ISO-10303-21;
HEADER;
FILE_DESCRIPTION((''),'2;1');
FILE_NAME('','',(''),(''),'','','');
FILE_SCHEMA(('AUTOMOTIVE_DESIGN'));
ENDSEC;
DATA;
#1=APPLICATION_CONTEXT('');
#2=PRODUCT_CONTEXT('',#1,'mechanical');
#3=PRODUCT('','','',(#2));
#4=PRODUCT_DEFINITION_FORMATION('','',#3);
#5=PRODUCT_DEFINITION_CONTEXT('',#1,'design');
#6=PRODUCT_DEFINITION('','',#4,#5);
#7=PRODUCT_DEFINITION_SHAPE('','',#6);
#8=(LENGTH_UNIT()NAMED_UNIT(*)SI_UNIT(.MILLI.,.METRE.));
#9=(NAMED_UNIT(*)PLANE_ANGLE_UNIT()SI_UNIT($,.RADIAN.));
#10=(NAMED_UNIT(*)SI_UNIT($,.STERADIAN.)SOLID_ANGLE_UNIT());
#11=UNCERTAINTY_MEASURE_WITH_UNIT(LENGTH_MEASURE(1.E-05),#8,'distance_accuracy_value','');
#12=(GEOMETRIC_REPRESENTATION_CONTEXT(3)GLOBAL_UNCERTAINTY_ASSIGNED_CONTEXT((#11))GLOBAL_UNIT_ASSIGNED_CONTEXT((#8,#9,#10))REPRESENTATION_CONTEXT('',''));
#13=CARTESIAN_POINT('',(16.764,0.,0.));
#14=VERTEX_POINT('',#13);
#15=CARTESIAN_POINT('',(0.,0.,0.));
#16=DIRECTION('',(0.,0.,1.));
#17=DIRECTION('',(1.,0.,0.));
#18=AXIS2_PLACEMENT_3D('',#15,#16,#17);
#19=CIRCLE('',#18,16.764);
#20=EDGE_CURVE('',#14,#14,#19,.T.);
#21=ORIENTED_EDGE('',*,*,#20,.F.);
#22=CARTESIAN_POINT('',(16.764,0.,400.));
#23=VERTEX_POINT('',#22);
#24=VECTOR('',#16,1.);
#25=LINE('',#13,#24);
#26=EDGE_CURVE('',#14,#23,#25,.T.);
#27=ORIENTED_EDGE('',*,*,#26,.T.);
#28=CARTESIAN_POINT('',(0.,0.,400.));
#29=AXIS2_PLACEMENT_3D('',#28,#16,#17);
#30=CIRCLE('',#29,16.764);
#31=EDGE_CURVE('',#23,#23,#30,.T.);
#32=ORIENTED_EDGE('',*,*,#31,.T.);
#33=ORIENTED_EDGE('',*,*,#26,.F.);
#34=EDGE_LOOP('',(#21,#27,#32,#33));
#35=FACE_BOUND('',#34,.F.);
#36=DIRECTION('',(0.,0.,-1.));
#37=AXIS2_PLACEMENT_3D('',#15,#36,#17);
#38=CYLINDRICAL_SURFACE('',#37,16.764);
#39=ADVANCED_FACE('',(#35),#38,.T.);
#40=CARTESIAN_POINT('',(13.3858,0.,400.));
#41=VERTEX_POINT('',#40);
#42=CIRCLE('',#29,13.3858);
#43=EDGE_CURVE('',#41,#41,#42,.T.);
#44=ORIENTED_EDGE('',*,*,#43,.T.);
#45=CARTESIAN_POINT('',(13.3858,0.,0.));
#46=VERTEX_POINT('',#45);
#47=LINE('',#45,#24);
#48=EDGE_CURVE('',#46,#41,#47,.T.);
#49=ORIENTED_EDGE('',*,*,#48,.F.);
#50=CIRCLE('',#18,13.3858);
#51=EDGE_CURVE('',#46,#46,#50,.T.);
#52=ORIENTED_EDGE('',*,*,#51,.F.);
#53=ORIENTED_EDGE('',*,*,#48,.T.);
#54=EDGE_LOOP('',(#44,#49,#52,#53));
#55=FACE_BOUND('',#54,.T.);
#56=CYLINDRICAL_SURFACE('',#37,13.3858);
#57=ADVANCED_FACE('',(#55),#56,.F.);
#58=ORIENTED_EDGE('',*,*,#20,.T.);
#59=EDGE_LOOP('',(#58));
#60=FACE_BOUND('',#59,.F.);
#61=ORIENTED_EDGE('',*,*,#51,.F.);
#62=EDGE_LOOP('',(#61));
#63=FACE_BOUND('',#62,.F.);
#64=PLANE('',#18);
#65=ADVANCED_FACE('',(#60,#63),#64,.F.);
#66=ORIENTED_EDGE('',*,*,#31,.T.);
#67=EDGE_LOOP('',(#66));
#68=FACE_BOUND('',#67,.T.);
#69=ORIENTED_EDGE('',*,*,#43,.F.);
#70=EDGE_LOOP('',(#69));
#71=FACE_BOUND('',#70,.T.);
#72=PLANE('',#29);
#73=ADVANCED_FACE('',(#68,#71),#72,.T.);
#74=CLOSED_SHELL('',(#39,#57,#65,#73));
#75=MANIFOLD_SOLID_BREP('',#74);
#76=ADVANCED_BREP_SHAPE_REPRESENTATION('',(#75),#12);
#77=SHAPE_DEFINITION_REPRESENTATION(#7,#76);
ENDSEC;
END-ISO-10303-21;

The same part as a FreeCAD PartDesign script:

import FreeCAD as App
import Part
import Sketcher
Q = App.Units.Quantity

doc = App.newDocument("Part")
body = doc.addObject("PartDesign::Body", "Body")

# Sketch on XY plane
sketch1 = body.newObject("Sketcher::SketchObject", "Sketch")
sketch1.AttachmentSupport = (doc.getObject("XY_Plane"), [""])
sketch1.MapMode = "FlatFace"
sketch1.addGeometry([
    Part.Circle(App.Vector(0, 0, 0), App.Vector(0, 0, 1), 16.764),
    Part.Circle(App.Vector(0, 0, 0), App.Vector(0, 0, 1), 13.3858),
], False)
sketch1.addConstraint([
    Sketcher.Constraint("Coincident", 0, 3, -1, 1),
    Sketcher.Constraint("Coincident", 1, 3, -1, 1),
    Sketcher.Constraint("Diameter", 0, Q("1.32 in")),
    Sketcher.Constraint("Diameter", 1, Q("1.054 in")),
])
pad1 = body.newObject("PartDesign::Pad", "Pad")
pad1.Profile = sketch1
pad1.Length = 400

doc.recompute()
